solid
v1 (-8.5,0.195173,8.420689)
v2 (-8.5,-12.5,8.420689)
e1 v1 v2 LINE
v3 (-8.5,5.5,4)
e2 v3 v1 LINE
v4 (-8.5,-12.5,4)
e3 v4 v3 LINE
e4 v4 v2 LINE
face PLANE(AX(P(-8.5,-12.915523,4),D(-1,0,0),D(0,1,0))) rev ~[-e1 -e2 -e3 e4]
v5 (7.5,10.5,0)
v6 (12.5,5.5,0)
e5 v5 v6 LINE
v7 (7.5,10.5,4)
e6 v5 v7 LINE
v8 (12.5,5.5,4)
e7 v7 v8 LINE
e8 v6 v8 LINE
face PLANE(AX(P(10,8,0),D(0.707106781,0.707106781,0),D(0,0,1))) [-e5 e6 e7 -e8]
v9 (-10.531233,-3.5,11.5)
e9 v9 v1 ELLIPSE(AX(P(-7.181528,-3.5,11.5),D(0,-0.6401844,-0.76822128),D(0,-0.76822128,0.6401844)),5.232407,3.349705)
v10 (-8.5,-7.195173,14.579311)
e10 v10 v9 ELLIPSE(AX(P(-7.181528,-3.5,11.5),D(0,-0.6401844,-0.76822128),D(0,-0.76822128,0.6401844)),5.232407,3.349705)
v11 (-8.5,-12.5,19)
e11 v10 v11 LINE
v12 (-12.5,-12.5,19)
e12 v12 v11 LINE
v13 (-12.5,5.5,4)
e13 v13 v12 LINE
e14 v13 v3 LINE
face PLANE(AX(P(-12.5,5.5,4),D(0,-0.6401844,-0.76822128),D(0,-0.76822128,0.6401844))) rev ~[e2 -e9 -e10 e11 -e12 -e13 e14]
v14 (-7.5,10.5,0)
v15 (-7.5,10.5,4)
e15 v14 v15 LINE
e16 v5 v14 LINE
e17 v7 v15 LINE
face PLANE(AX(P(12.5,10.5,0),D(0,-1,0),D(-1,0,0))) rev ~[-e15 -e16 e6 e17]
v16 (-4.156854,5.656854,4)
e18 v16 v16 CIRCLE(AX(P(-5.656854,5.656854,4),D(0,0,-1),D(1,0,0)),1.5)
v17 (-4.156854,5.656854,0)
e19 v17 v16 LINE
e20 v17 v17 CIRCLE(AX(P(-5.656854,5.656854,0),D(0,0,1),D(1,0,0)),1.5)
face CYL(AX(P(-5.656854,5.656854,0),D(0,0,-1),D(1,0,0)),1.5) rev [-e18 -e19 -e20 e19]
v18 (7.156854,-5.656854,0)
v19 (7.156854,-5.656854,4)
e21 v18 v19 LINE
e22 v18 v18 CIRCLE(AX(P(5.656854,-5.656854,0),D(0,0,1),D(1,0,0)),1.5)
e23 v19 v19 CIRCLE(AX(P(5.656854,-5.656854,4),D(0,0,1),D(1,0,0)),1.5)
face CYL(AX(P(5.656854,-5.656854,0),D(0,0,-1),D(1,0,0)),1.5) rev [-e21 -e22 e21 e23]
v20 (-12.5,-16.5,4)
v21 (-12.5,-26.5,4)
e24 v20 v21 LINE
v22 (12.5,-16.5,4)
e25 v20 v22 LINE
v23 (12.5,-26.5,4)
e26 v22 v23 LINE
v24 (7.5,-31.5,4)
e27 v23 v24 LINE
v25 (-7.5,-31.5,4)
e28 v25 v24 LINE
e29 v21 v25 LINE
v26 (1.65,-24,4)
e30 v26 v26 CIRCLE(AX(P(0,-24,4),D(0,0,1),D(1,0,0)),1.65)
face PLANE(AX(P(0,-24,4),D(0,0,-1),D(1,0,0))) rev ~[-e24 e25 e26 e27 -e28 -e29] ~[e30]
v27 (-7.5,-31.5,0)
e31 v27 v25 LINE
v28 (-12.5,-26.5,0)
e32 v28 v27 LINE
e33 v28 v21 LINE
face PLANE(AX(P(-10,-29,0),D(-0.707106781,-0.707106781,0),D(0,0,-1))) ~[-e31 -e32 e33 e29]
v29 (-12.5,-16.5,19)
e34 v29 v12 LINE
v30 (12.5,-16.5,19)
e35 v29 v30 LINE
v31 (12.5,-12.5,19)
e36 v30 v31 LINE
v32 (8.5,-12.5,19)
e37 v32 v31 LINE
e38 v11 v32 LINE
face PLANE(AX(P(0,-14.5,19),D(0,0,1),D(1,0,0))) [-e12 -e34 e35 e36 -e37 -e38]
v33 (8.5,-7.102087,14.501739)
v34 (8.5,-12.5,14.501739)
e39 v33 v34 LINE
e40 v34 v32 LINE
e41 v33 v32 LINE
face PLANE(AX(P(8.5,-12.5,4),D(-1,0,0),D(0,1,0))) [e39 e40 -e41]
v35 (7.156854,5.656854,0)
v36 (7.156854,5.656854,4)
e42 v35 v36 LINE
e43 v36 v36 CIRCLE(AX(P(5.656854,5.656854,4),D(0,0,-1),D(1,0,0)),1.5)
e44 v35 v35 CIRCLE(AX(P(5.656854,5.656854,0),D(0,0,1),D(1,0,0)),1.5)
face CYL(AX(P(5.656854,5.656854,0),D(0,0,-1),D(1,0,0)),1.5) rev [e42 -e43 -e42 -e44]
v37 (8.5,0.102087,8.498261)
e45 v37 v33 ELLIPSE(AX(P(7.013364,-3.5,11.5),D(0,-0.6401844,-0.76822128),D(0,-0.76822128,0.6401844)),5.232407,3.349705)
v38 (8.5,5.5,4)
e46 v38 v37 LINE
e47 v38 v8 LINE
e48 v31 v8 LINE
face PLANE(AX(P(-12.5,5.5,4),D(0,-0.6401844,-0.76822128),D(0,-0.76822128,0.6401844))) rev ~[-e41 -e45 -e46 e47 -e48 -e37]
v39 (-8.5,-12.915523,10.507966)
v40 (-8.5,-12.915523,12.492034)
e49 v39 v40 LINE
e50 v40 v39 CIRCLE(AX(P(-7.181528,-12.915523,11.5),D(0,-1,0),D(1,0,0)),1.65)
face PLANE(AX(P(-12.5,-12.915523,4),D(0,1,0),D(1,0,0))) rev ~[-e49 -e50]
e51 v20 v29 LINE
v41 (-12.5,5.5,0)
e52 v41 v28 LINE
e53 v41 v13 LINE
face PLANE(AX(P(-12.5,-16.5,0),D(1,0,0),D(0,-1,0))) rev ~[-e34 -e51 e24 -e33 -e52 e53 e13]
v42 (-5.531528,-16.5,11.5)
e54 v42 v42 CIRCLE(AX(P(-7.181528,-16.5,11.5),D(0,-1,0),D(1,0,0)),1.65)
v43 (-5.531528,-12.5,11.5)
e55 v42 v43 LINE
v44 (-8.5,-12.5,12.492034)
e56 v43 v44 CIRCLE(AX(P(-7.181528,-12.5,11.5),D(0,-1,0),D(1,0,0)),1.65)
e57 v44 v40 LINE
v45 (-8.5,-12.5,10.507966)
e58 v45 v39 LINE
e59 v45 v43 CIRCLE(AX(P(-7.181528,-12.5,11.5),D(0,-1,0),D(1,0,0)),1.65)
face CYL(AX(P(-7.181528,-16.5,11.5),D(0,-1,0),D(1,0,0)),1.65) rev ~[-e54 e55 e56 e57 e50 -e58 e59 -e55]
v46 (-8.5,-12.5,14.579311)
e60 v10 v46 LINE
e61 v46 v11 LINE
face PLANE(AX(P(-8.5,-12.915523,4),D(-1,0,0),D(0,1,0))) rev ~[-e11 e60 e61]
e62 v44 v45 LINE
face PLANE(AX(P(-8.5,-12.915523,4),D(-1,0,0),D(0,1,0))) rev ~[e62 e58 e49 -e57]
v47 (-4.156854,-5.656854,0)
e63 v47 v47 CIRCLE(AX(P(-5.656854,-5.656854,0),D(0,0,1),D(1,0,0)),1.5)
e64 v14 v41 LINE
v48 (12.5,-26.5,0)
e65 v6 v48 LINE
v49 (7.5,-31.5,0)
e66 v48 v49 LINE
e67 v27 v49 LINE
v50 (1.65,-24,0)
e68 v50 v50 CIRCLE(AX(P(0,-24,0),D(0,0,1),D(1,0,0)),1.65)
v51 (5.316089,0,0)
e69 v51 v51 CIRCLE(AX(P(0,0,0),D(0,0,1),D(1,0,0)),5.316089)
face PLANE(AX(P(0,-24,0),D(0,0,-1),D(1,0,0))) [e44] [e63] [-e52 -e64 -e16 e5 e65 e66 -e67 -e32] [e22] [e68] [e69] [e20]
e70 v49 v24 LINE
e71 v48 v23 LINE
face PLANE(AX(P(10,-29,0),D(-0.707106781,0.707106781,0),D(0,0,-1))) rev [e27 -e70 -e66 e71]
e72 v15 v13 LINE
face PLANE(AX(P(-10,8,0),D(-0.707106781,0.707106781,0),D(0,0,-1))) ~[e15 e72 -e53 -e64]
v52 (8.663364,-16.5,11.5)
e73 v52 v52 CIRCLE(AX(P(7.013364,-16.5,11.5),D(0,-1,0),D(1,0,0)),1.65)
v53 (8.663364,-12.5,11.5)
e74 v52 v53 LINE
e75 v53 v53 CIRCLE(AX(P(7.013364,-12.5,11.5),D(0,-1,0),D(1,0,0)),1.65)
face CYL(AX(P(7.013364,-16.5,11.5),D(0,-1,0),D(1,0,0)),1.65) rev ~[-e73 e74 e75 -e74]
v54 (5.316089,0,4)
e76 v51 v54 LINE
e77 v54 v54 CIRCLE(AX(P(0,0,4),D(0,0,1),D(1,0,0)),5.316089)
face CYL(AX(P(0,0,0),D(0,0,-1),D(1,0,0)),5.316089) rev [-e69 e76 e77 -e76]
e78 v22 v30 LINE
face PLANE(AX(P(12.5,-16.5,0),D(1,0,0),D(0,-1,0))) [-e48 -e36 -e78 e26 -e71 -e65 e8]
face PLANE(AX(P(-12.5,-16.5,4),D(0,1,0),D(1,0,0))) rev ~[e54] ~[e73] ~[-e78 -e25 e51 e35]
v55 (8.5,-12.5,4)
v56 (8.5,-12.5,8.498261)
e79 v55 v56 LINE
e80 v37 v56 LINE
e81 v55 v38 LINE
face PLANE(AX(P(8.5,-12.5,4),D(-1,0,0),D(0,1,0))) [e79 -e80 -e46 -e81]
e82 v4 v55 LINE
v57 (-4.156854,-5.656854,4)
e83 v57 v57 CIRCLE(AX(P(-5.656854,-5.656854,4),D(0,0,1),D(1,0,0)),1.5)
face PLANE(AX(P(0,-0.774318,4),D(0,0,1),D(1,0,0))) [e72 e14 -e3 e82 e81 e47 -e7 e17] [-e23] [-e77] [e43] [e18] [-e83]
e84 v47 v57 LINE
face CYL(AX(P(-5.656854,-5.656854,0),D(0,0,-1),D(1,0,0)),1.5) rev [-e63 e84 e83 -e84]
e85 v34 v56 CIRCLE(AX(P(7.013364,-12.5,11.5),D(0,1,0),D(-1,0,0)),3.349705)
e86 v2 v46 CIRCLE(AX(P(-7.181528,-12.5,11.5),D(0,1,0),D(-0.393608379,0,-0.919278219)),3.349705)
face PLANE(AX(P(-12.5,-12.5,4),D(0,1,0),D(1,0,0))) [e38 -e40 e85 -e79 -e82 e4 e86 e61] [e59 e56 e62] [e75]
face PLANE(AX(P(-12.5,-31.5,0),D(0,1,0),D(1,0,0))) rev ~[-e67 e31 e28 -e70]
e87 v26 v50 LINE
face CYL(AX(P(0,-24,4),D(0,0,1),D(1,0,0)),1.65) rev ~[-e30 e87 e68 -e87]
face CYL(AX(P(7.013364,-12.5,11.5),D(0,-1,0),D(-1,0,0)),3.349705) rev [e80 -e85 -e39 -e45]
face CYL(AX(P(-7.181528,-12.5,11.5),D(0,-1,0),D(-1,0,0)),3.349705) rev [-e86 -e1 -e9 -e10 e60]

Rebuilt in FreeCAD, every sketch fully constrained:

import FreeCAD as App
import Part
import Sketcher
from FreeCAD import Vector
Q = App.Units.Quantity


def edges_at(feature, points):
    """Names of the edges that pass closest to the given points."""
    edges = feature.Shape.Edges
    near = lambda p: min(range(len(edges)), key=lambda i: edges[i].distToShape(Part.Vertex(*p))[0])
    return sorted({f"Edge{near(p) + 1}" for p in points})

doc = App.newDocument("Part")
body = doc.addObject("PartDesign::Body", "Body")

# Sketch on XY plane
sketch1 = body.newObject("Sketcher::SketchObject", "Sketch")
sketch1.AttachmentSupport = (doc.getObject("XY_Plane"), [""])
sketch1.MapMode = "FlatFace"
sketch1.addGeometry(Part.LineSegment(Vector(12.5, 10.5, 0), Vector(-12.5, 10.5, 0)), False)
sketch1.addGeometry(Part.LineSegment(Vector(-12.5, 10.5, 0), Vector(-12.5, -16.5, 0)), False)
sketch1.addGeometry(Part.LineSegment(Vector(-12.5, -16.5, 0), Vector(12.5, -16.5, 0)), False)
sketch1.addGeometry(Part.LineSegment(Vector(12.5, -16.5, 0), Vector(12.5, 10.5, 0)), False)
sketch1.addGeometry(Part.Circle(Vector(-5.7, -5.7, 0), Vector(0, 0, 1), 1.5), False)
sketch1.addGeometry(Part.Circle(Vector(5.7, -5.7, 0), Vector(0, 0, 1), 1.5), False)
sketch1.addGeometry(Part.Circle(Vector(-5.7, 5.7, 0), Vector(0, 0, 1), 1.5), False)
sketch1.addGeometry(Part.Circle(Vector(0, 0, 0), Vector(0, 0, 1), 5.3), False)
sketch1.addGeometry(Part.Circle(Vector(5.7, 5.7, 0), Vector(0, 0, 1), 1.5), False)
sketch1.addConstraint(Sketcher.Constraint("Coincident", 0, 2, 1, 1))
sketch1.addConstraint(Sketcher.Constraint("Coincident", 1, 2, 2, 1))
sketch1.addConstraint(Sketcher.Constraint("Coincident", 2, 2, 3, 1))
sketch1.addConstraint(Sketcher.Constraint("Coincident", 3, 2, 0, 1))
sketch1.addConstraint(Sketcher.Constraint("Horizontal", 0))
sketch1.addConstraint(Sketcher.Constraint("Vertical", 1))
sketch1.addConstraint(Sketcher.Constraint("Horizontal", 2))
sketch1.addConstraint(Sketcher.Constraint("Vertical", 3))
sketch1.addConstraint(Sketcher.Constraint("Coincident", 7, 3, -1, 1))
sketch1.addConstraint(Sketcher.Constraint("Equal", 4, 5))
sketch1.addConstraint(Sketcher.Constraint("Equal", 5, 6))
sketch1.addConstraint(Sketcher.Constraint("Equal", 6, 8))
sketch1.addConstraint(Sketcher.Constraint("Symmetric", 5, 3, 6, 3, -1, 1))
sketch1.addConstraint(Sketcher.Constraint("Symmetric", 4, 3, 8, 3, -1, 1))
sketch1.addConstraint(Sketcher.Constraint("Symmetric", 4, 3, 5, 3, -2))
sketch1.addConstraint(Sketcher.Constraint("Diameter", 4, Q("3 mm")))
sketch1.addConstraint(Sketcher.Constraint("DistanceX", 0, 2, 0, 1, Q("25 mm")))
sketch1.addConstraint(Sketcher.Constraint("DistanceY", 1, 2, 1, 1, Q("27 mm")))
sketch1.addConstraint(Sketcher.Constraint("DistanceX", 0, 2, -1, 1, Q("12.5 mm")))
sketch1.addConstraint(Sketcher.Constraint("DistanceY", -1, 1, 0, 2, Q("10.5 mm")))
sketch1.addConstraint(Sketcher.Constraint("Diameter", 7, Q("10.632178 mm")))
sketch1.addConstraint(Sketcher.Constraint("DistanceX", 4, 3, 5, 3, Q("11.313709 mm")))
sketch1.addConstraint(Sketcher.Constraint("DistanceY", 4, 3, 6, 3, Q("11.313709 mm")))
pad1 = body.newObject("PartDesign::Pad", "Pad")
pad1.Profile = sketch1
pad1.Length = 4
doc.recompute()

chamfer = body.newObject("PartDesign::Chamfer", "Chamfer")
chamfer.Base = (pad1, edges_at(pad1, [(12.5, 10.5, 2), (-12.5, 10.5, 2)]))
chamfer.Size = 5

# Sketch on XY plane
sketch2 = body.newObject("Sketcher::SketchObject", "Sketch001")
sketch2.AttachmentSupport = (doc.getObject("XY_Plane"), [""])
sketch2.MapMode = "FlatFace"
sketch2.AttachmentOffset = App.Placement(Vector(0, 0, 4), App.Rotation())
sketch2.addGeometry(Part.LineSegment(Vector(-12.5, -12.5, 0), Vector(-12.5, -16.5, 0)), False)
sketch2.addGeometry(Part.LineSegment(Vector(-12.5, -16.5, 0), Vector(12.5, -16.5, 0)), False)
sketch2.addGeometry(Part.LineSegment(Vector(12.5, -16.5, 0), Vector(12.5, -12.5, 0)), False)
sketch2.addGeometry(Part.LineSegment(Vector(12.5, -12.5, 0), Vector(-12.5, -12.5, 0)), False)
sketch2.addConstraint(Sketcher.Constraint("Coincident", 0, 2, 1, 1))
sketch2.addConstraint(Sketcher.Constraint("Coincident", 1, 2, 2, 1))
sketch2.addConstraint(Sketcher.Constraint("Coincident", 2, 2, 3, 1))
sketch2.addConstraint(Sketcher.Constraint("Coincident", 3, 2, 0, 1))
sketch2.addConstraint(Sketcher.Constraint("Vertical", 0))
sketch2.addConstraint(Sketcher.Constraint("Horizontal", 1))
sketch2.addConstraint(Sketcher.Constraint("Vertical", 2))
sketch2.addConstraint(Sketcher.Constraint("Horizontal", 3))
sketch2.addConstraint(Sketcher.Constraint("DistanceX", 1, 1, 1, 2, Q("25 mm")))
sketch2.addConstraint(Sketcher.Constraint("DistanceY", 0, 2, 0, 1, Q("4 mm")))
sketch2.addConstraint(Sketcher.Constraint("DistanceX", 0, 2, -1, 1, Q("12.5 mm")))
sketch2.addConstraint(Sketcher.Constraint("DistanceY", 0, 2, -1, 1, Q("16.5 mm")))
pad2 = body.newObject("PartDesign::Pad", "Pad001")
pad2.Profile = sketch2
pad2.Length = 15

# Sketch on XY plane
sketch3 = body.newObject("Sketcher::SketchObject", "Sketch002")
sketch3.AttachmentSupport = (doc.getObject("XY_Plane"), [""])
sketch3.MapMode = "FlatFace"
sketch3.addGeometry(Part.LineSegment(Vector(-12, -32, 0), Vector(-12, -16, 0)), False)
sketch3.addGeometry(Part.LineSegment(Vector(-12, -16, 0), Vector(12, -16, 0)), False)
sketch3.addGeometry(Part.LineSegment(Vector(12, -16, 0), Vector(12, -32, 0)), False)
sketch3.addGeometry(Part.LineSegment(Vector(12, -32, 0), Vector(-12, -32, 0)), False)
sketch3.addConstraint(Sketcher.Constraint("Coincident", 0, 2, 1, 1))
sketch3.addConstraint(Sketcher.Constraint("Coincident", 1, 2, 2, 1))
sketch3.addConstraint(Sketcher.Constraint("Coincident", 2, 2, 3, 1))
sketch3.addConstraint(Sketcher.Constraint("Coincident", 3, 2, 0, 1))
sketch3.addConstraint(Sketcher.Constraint("Vertical", 0))
sketch3.addConstraint(Sketcher.Constraint("Horizontal", 1))
sketch3.addConstraint(Sketcher.Constraint("Vertical", 2))
sketch3.addConstraint(Sketcher.Constraint("Horizontal", 3))
sketch3.addConstraint(Sketcher.Constraint("DistanceX", 1, 1, 1, 2, Q("25 mm")))
sketch3.addConstraint(Sketcher.Constraint("DistanceY", 0, 1, 0, 2, Q("15 mm")))
sketch3.addConstraint(Sketcher.Constraint("DistanceX", 0, 2, -1, 1, Q("12.5 mm")))
sketch3.addConstraint(Sketcher.Constraint("DistanceY", 0, 2, -1, 1, Q("16.5 mm")))
pad3 = body.newObject("PartDesign::Pad", "Pad002")
pad3.Profile = sketch3
pad3.Length = 4

# Sketch on XZ plane
sketch4 = body.newObject("Sketcher::SketchObject", "Sketch003")
sketch4.AttachmentSupport = (doc.getObject("XZ_Plane"), [""])
sketch4.MapMode = "FlatFace"
sketch4.AttachmentOffset = App.Placement(Vector(0, 0, 16.5), App.Rotation())
sketch4.addGeometry(Part.Circle(Vector(-7.2, 11.5, 0), Vector(0, 0, 1), 1.6), False)
sketch4.addGeometry(Part.Circle(Vector(7, 11.5, 0), Vector(0, 0, 1), 1.6), False)
sketch4.addConstraint(Sketcher.Constraint("Equal", 0, 1))
sketch4.addConstraint(Sketcher.Constraint("Horizontal", 0, 3, 1, 3))
sketch4.addConstraint(Sketcher.Constraint("Diameter", 0, Q("3.3 mm")))
sketch4.addConstraint(Sketcher.Constraint("DistanceY", -1, 1, 0, 3, Q("11.5 mm")))
sketch4.addConstraint(Sketcher.Constraint("DistanceX", 0, 3, -1, 1, Q("7.181528 mm")))
sketch4.addConstraint(Sketcher.Constraint("DistanceX", -1, 1, 1, 3, Q("7.013364 mm")))
pocket1 = body.newObject("PartDesign::Pocket", "Pocket")
pocket1.Profile = sketch4
pocket1.Length = 25

# Sketch on XY plane
sketch5 = body.newObject("Sketcher::SketchObject", "Sketch004")
sketch5.AttachmentSupport = (doc.getObject("XY_Plane"), [""])
sketch5.MapMode = "FlatFace"
sketch5.AttachmentOffset = App.Placement(Vector(0, 0, 4), App.Rotation())
sketch5.addGeometry(Part.Circle(Vector(0, -24, 0), Vector(0, 0, 1), 1.6), False)
sketch5.addConstraint(Sketcher.Constraint("PointOnObject", 0, 3, -2))
sketch5.addConstraint(Sketcher.Constraint("Diameter", 0, Q("3.3 mm")))
sketch5.addConstraint(Sketcher.Constraint("DistanceY", 0, 3, -1, 1, Q("24 mm")))
pocket2 = body.newObject("PartDesign::Pocket", "Pocket001")
pocket2.Profile = sketch5
pocket2.Length = 25

# Sketch on XY plane
sketch6 = body.newObject("Sketcher::SketchObject", "Sketch005")
sketch6.AttachmentSupport = (doc.getObject("XY_Plane"), [""])
sketch6.MapMode = "FlatFace"
sketch6.AttachmentOffset = App.Placement(Vector(0, 0, 4), App.Rotation())
sketch6.addGeometry(Part.LineSegment(Vector(-12.5, 5.5, 0), Vector(-12.5, -12.9, 0)), False)
sketch6.addGeometry(Part.LineSegment(Vector(-12.5, -12.9, 0), Vector(-8.5, -12.9, 0)), False)
sketch6.addGeometry(Part.LineSegment(Vector(-8.5, -12.9, 0), Vector(-8.5, 5.5, 0)), False)
sketch6.addGeometry(Part.LineSegment(Vector(-8.5, 5.5, 0), Vector(-12.5, 5.5, 0)), False)
sketch6.addGeometry(Part.LineSegment(Vector(8.5, 5.5, 0), Vector(8.5, -12.5, 0)), False)
sketch6.addGeometry(Part.LineSegment(Vector(8.5, -12.5, 0), Vector(12.5, -12.5, 0)), False)
sketch6.addGeometry(Part.LineSegment(Vector(12.5, -12.5, 0), Vector(12.5, 5.5, 0)), False)
sketch6.addGeometry(Part.LineSegment(Vector(12.5, 5.5, 0), Vector(8.5, 5.5, 0)), False)
sketch6.addConstraint(Sketcher.Constraint("Coincident", 0, 2, 1, 1))
sketch6.addConstraint(Sketcher.Constraint("Coincident", 1, 2, 2, 1))
sketch6.addConstraint(Sketcher.Constraint("Coincident", 2, 2, 3, 1))
sketch6.addConstraint(Sketcher.Constraint("Coincident", 3, 2, 0, 1))
sketch6.addConstraint(Sketcher.Constraint("Coincident", 4, 2, 5, 1))
sketch6.addConstraint(Sketcher.Constraint("Coincident", 5, 2, 6, 1))
sketch6.addConstraint(Sketcher.Constraint("Coincident", 6, 2, 7, 1))
sketch6.addConstraint(Sketcher.Constraint("Coincident", 7, 2, 4, 1))
sketch6.addConstraint(Sketcher.Constraint("Vertical", 0))
sketch6.addConstraint(Sketcher.Constraint("Horizontal", 1))
sketch6.addConstraint(Sketcher.Constraint("Vertical", 2))
sketch6.addConstraint(Sketcher.Constraint("Horizontal", 3))
sketch6.addConstraint(Sketcher.Constraint("Vertical", 4))
sketch6.addConstraint(Sketcher.Constraint("Horizontal", 5))
sketch6.addConstraint(Sketcher.Constraint("Vertical", 6))
sketch6.addConstraint(Sketcher.Constraint("Horizontal", 7))
sketch6.addConstraint(Sketcher.Constraint("Symmetric", 3, 2, 6, 2, -2))
sketch6.addConstraint(Sketcher.Constraint("Equal", 3, 5))
sketch6.addConstraint(Sketcher.Constraint("DistanceX", 1, 1, 1, 2, Q("4 mm")))
sketch6.addConstraint(Sketcher.Constraint("DistanceY", 4, 2, 4, 1, Q("18 mm")))
sketch6.addConstraint(Sketcher.Constraint("DistanceX", 1, 2, 4, 2, Q("17 mm")))
sketch6.addConstraint(Sketcher.Constraint("DistanceY", -1, 1, 2, 2, Q("5.5 mm")))
sketch6.addConstraint(Sketcher.Constraint("DistanceY", 0, 2, 0, 1, Q("18.415523 mm")))
pad4 = body.newObject("PartDesign::Pad", "Pad003")
pad4.Profile = sketch6
pad4.Length = 15

# Sketch on YZ plane
sketch7 = body.newObject("Sketcher::SketchObject", "Sketch006")
sketch7.AttachmentSupport = (doc.getObject("YZ_Plane"), [""])
sketch7.MapMode = "FlatFace"
sketch7.AttachmentOffset = App.Placement(Vector(0, 0, -12.5), App.Rotation())
sketch7.addGeometry(Part.LineSegment(Vector(6, 4, 0), Vector(-12, 19, 0)), False)
sketch7.addGeometry(Part.LineSegment(Vector(-12, 19, 0), Vector(6, 19, 0)), False)
sketch7.addGeometry(Part.LineSegment(Vector(6, 19, 0), Vector(6, 4, 0)), False)
sketch7.addConstraint(Sketcher.Constraint("Coincident", 0, 2, 1, 1))
sketch7.addConstraint(Sketcher.Constraint("Coincident", 1, 2, 2, 1))
sketch7.addConstraint(Sketcher.Constraint("Coincident", 2, 2, 0, 1))
sketch7.addConstraint(Sketcher.Constraint("Horizontal", 1))
sketch7.addConstraint(Sketcher.Constraint("Vertical", 2))
sketch7.addConstraint(Sketcher.Constraint("DistanceX", 1, 1, 1, 2, Q("18 mm")))
sketch7.addConstraint(Sketcher.Constraint("DistanceY", 2, 2, 2, 1, Q("15 mm")))
sketch7.addConstraint(Sketcher.Constraint("DistanceY", -1, 1, 0, 2, Q("19 mm")))
sketch7.addConstraint(Sketcher.Constraint("DistanceX", 0, 2, -1, 1, Q("12.5 mm")))
pocket3 = body.newObject("PartDesign::Pocket", "Pocket002")
pocket3.Profile = sketch7
pocket3.Length = 28.2
pocket3.Reversed = True

# Sketch on XZ plane
sketch8 = body.newObject("Sketcher::SketchObject", "Sketch007")
sketch8.AttachmentSupport = (doc.getObject("XZ_Plane"), [""])
sketch8.MapMode = "FlatFace"
sketch8.AttachmentOffset = App.Placement(Vector(0, 0, 12.5), App.Rotation())
sketch8.addGeometry(Part.Circle(Vector(7, 11.5, 0), Vector(0, 0, 1), 3.3), False)
sketch8.addGeometry(Part.Circle(Vector(-7.2, 11.5, 0), Vector(0, 0, 1), 3.3), False)
sketch8.addConstraint(Sketcher.Constraint("Equal", 0, 1))
sketch8.addConstraint(Sketcher.Constraint("Horizontal", 0, 3, 1, 3))
sketch8.addConstraint(Sketcher.Constraint("DistanceY", -1, 1, 0, 3, Q("11.5 mm")))
sketch8.addConstraint(Sketcher.Constraint("Diameter", 0, Q("6.69941 mm")))
sketch8.addConstraint(Sketcher.Constraint("DistanceX", 1, 3, -1, 1, Q("7.181528 mm")))
sketch8.addConstraint(Sketcher.Constraint("DistanceX", -1, 1, 0, 3, Q("7.013364 mm")))
pocket4 = body.newObject("PartDesign::Pocket", "Pocket003")
pocket4.Profile = sketch8
pocket4.Length = 25
doc.recompute()

chamfer2 = body.newObject("PartDesign::Chamfer", "Chamfer001")
chamfer2.Base = (pocket4, edges_at(pocket4, [(-12.5, -31.5, 2), (12.5, -31.5, 2)]))
chamfer2.Size = 5

doc.recompute()
